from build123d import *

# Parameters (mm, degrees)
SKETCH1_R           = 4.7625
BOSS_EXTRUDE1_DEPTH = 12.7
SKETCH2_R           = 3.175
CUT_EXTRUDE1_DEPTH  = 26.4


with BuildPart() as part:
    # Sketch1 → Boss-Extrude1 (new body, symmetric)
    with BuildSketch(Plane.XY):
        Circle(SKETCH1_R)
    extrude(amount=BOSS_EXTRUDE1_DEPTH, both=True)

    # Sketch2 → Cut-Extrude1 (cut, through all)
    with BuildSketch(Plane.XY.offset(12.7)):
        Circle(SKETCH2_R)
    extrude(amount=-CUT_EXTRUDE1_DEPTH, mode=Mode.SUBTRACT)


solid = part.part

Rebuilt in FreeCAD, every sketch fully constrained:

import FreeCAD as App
import Part
import Sketcher
Q = App.Units.Quantity

doc = App.newDocument("Part")
body = doc.addObject("PartDesign::Body", "Body")

# Sketch on XY plane
sketch1 = doc.addObject("Sketcher::SketchObject", "Sketch")
body.addObject(sketch1)
sketch1.AttachmentSupport = (doc.XY_Plane, [""])
sketch1.MapMode = "FlatFace"
sketch1.addGeometry(Part.Circle(App.Vector(0, 0, 0), App.Vector(0, 0, 1), 4.8), False)
sketch1.addConstraint(Sketcher.Constraint("Coincident", 0, 3, -1, 1))
sketch1.addConstraint(Sketcher.Constraint("Diameter", 0, Q("0.375 in")))
pad1 = doc.addObject("PartDesign::Pad", "Pad")
body.addObject(pad1)
pad1.Profile = sketch1
pad1.Length = Q("1 in")
pad1.Midplane = True

# Sketch on XY plane
sketch2 = doc.addObject("Sketcher::SketchObject", "Sketch001")
body.addObject(sketch2)
sketch2.AttachmentSupport = (doc.XY_Plane, [""])
sketch2.MapMode = "FlatFace"
sketch2.AttachmentOffset = App.Placement(App.Vector(0, 0, 0.5 * 25.4), App.Rotation())
sketch2.addGeometry(Part.Circle(App.Vector(0, 0, 0), App.Vector(0, 0, 1), 3.2), False)
sketch2.addConstraint(Sketcher.Constraint("Coincident", 0, 3, -1, 1))
sketch2.addConstraint(Sketcher.Constraint("Diameter", 0, Q("0.25 in")))
pocket1 = doc.addObject("PartDesign::Pocket", "Pocket")
body.addObject(pocket1)
pocket1.Profile = sketch2
pocket1.Type = "ThroughAll"

doc.recompute()
